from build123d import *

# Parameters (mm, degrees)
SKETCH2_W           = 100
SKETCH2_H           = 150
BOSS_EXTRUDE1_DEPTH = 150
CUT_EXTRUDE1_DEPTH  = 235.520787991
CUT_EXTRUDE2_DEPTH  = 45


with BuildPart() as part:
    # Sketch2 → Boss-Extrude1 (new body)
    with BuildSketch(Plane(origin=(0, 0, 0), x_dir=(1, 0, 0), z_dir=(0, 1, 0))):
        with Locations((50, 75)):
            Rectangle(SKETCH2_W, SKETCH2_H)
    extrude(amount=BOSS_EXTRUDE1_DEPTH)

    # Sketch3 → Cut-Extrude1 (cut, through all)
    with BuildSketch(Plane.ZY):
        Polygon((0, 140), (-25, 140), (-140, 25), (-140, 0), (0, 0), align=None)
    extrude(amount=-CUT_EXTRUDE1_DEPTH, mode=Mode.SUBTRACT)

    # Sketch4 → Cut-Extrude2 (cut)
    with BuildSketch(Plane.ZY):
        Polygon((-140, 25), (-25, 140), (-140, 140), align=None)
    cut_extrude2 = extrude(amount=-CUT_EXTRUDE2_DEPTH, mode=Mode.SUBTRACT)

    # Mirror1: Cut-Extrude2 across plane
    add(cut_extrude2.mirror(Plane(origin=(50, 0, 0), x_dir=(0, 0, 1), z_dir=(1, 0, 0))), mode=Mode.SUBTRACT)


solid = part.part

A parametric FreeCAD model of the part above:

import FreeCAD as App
import Part
import Sketcher
from FreeCAD import Vector


def add_polygon(sketch, points):
    """Adds a closed chain of lines whose ends are joined by coincident constraints."""
    first, n = sketch.GeometryCount, len(points)
    for a, b in zip(points, points[1:] + points[:1]):
        sketch.addGeometry(Part.LineSegment(App.Vector(*a, 0), App.Vector(*b, 0)), False)
    for i in range(n):
        sketch.addConstraint(Sketcher.Constraint("Coincident", first + i, 2, first + (i + 1) % n, 1))

doc = App.newDocument("Part")
body = doc.addObject("PartDesign::Body", "Body")

sketch1 = body.newObject("Sketcher::SketchObject", "Sketch")
sketch1.AttachmentSupport = (doc.getObject("XZ_Plane"), [""])
sketch1.MapMode = "FlatFace"
add_polygon(sketch1, [(0, -150), (0, 0), (100, 0), (100, -150)])
sketch1.addConstraint([
    Sketcher.Constraint("Vertical", 0),
    Sketcher.Constraint("Horizontal", 1),
    Sketcher.Constraint("Vertical", 2),
    Sketcher.Constraint("Horizontal", 3),
    Sketcher.Constraint("Coincident", 0, 2, -1, 1),
    Sketcher.Constraint("DistanceX", 1, 1, 1, 2, 100.0),
    Sketcher.Constraint("DistanceY", 0, 1, 0, 2, 150.0),
])
pad1 = body.newObject("PartDesign::Pad", "Pad")
pad1.Profile = sketch1
pad1.Length = 150
pad1.Reversed = True

sketch2 = body.newObject("Sketcher::SketchObject", "Sketch001")
sketch2.AttachmentSupport = (doc.getObject("YZ_Plane"), [""])
sketch2.MapMode = "FlatFace"
add_polygon(sketch2, [(140, 0), (140, -25), (25, -140), (0, -140), (0, 0)])
sketch2.addConstraint([
    Sketcher.Constraint("Vertical", 0),
    Sketcher.Constraint("Horizontal", 2),
    Sketcher.Constraint("Vertical", 3),
    Sketcher.Constraint("Horizontal", 4),
    Sketcher.Constraint("Coincident", 3, 2, -1, 1),
    Sketcher.Constraint("Equal", 2, 0),
    Sketcher.Constraint("Equal", 4, 3),
    Sketcher.Constraint("DistanceX", 2, 2, 2, 1, 25.0),
    Sketcher.Constraint("DistanceX", 4, 1, 4, 2, 140.0),
])
pocket1 = body.newObject("PartDesign::Pocket", "Pocket")
pocket1.Profile = sketch2
pocket1.Type = "ThroughAll"
pocket1.Reversed = True

sketch3 = body.newObject("Sketcher::SketchObject", "Sketch002")
sketch3.AttachmentSupport = (doc.getObject("YZ_Plane"), [""])
sketch3.MapMode = "FlatFace"
add_polygon(sketch3, [(25, -140), (140, -25), (140, -140)])
sketch3.addConstraint([
    Sketcher.Constraint("Vertical", 1),
    Sketcher.Constraint("Horizontal", 2),
    Sketcher.Constraint("Equal", 2, 1),
    Sketcher.Constraint("DistanceX", 2, 2, 2, 1, 115.0),
    Sketcher.Constraint("DistanceX", -1, 1, 0, 2, 140.0),
    Sketcher.Constraint("DistanceY", 0, 2, -1, 1, 25.0),
])
pocket2 = body.newObject("PartDesign::Pocket", "Pocket001")
pocket2.Profile = sketch3
pocket2.Length = 45
pocket2.Reversed = True
doc.recompute()

datumplane = body.newObject("PartDesign::Plane", "DatumPlane")
datumplane.AttachmentSupport = (doc.getObject("YZ_Plane"), [""])
datumplane.MapMode = "FlatFace"
datumplane.AttachmentOffset = App.Placement(Vector(0, 0, 50), App.Rotation())
mirrored = body.newObject("PartDesign::Mirrored", "Mirrored")
mirrored.Originals = [pocket2]
mirrored.MirrorPlane = (datumplane, [""])
body.Tip = mirrored

doc.recompute()
